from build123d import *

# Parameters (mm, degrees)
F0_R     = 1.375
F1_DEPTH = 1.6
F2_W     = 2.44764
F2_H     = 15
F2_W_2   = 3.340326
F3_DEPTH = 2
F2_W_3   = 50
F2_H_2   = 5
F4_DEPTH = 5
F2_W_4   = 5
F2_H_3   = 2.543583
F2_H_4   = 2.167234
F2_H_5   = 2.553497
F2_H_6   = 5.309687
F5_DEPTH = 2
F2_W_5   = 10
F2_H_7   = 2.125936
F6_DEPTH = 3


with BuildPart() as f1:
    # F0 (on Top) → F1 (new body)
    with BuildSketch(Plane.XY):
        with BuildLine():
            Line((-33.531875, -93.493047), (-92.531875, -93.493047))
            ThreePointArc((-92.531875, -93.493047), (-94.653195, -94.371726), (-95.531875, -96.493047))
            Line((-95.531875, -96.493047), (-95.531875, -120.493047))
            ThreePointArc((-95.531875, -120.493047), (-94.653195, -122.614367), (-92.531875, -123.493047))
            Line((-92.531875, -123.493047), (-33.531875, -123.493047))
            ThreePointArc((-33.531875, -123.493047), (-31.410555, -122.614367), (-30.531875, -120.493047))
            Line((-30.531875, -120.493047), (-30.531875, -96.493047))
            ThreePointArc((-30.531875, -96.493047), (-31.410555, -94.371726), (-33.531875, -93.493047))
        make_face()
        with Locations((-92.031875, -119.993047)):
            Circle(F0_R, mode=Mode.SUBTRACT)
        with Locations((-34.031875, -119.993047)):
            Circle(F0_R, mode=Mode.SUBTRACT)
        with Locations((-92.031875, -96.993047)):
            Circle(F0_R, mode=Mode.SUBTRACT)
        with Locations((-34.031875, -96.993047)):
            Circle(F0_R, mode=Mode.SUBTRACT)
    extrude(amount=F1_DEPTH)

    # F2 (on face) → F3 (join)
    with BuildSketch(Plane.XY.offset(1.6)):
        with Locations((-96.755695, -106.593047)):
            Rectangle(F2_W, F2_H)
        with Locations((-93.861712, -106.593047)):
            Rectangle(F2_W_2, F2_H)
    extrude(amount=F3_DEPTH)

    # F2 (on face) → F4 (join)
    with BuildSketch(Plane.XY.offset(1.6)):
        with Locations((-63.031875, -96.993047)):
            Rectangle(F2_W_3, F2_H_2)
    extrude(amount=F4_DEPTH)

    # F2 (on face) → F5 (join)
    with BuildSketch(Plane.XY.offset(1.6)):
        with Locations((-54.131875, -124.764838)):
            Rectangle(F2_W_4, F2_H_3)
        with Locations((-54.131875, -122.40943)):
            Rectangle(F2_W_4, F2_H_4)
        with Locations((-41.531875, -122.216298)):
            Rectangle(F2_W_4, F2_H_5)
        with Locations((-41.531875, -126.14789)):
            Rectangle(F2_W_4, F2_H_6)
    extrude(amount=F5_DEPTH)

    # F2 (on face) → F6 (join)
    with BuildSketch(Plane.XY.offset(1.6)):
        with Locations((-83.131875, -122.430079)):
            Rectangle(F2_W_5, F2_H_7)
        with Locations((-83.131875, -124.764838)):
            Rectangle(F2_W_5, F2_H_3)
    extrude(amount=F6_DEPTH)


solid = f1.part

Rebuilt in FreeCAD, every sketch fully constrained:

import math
import FreeCAD as App
import Part
import Sketcher
Q = App.Units.Quantity


def add_polygon(sketch, points):
    """Adds a closed chain of lines whose ends are joined by coincident constraints."""
    first, n = sketch.GeometryCount, len(points)
    for a, b in zip(points, points[1:] + points[:1]):
        sketch.addGeometry(Part.LineSegment(App.Vector(*a, 0), App.Vector(*b, 0)), False)
    for i in range(n):
        sketch.addConstraint(Sketcher.Constraint("Coincident", first + i, 2, first + (i + 1) % n, 1))

doc = App.newDocument("Part")
body = doc.addObject("PartDesign::Body", "Body")

# Sketch on XY plane
sketch1 = body.newObject("Sketcher::SketchObject", "Sketch")
sketch1.AttachmentSupport = (doc.getObject("XY_Plane"), [""])
sketch1.MapMode = "FlatFace"
sketch1.addGeometry([
    Part.LineSegment(App.Vector(-33.5, -93.5, 0), App.Vector(-92.5, -93.5, 0)),  # 0
    Part.ArcOfCircle(Part.Circle(App.Vector(-92.5, -96.5, 0), App.Vector(0, 0, 1), 3), math.radians(90), math.radians(180)),  # 1
    Part.LineSegment(App.Vector(-95.5, -96.5, 0), App.Vector(-95.5, -120.5, 0)),  # 2
    Part.ArcOfCircle(Part.Circle(App.Vector(-92.5, -120.5, 0), App.Vector(0, 0, 1), 3), math.radians(-180), math.radians(-90)),  # 3
    Part.LineSegment(App.Vector(-92.5, -123.5, 0), App.Vector(-33.5, -123.5, 0)),  # 4
    Part.ArcOfCircle(Part.Circle(App.Vector(-33.5, -120.5, 0), App.Vector(0, 0, 1), 3), math.radians(-90), math.radians(0)),  # 5
    Part.LineSegment(App.Vector(-30.5, -120.5, 0), App.Vector(-30.5, -96.5, 0)),  # 6
    Part.ArcOfCircle(Part.Circle(App.Vector(-33.5, -96.5, 0), App.Vector(0, 0, 1), 3), math.radians(0), math.radians(90)),  # 7
    Part.Circle(App.Vector(-92, -120, 0), App.Vector(0, 0, 1), 1.4),  # 8
    Part.Circle(App.Vector(-34, -120, 0), App.Vector(0, 0, 1), 1.4),  # 9
    Part.Circle(App.Vector(-92, -97, 0), App.Vector(0, 0, 1), 1.4),  # 10
    Part.Circle(App.Vector(-34, -97, 0), App.Vector(0, 0, 1), 1.4),  # 11
], False)
sketch1.addConstraint([
    Sketcher.Constraint("Tangent", 0, 2, 1, 1),
    Sketcher.Constraint("Tangent", 1, 2, 2, 1),
    Sketcher.Constraint("Tangent", 2, 2, 3, 1),
    Sketcher.Constraint("Tangent", 3, 2, 4, 1),
    Sketcher.Constraint("Tangent", 4, 2, 5, 1),
    Sketcher.Constraint("Tangent", 5, 2, 6, 1),
    Sketcher.Constraint("Tangent", 6, 2, 7, 1),
    Sketcher.Constraint("Tangent", 7, 2, 0, 1),
    Sketcher.Constraint("Horizontal", 0),
    Sketcher.Constraint("Vertical", 2),
    Sketcher.Constraint("Horizontal", 4),
    Sketcher.Constraint("Vertical", 6),
    Sketcher.Constraint("Equal", 1, 3),
    Sketcher.Constraint("Equal", 3, 5),
    Sketcher.Constraint("Equal", 5, 7),
    Sketcher.Constraint("Equal", 8, 9),
    Sketcher.Constraint("Equal", 9, 10),
    Sketcher.Constraint("Equal", 10, 11),
    Sketcher.Constraint("Horizontal", 8, 3, 9, 3),
    Sketcher.Constraint("Horizontal", 10, 3, 11, 3),
    Sketcher.Constraint("Vertical", 8, 3, 10, 3),
    Sketcher.Constraint("Vertical", 9, 3, 11, 3),
    Sketcher.Constraint("Radius", 1, Q("2.999999 mm")),
    Sketcher.Constraint("Diameter", 8, Q("2.75 mm")),
    Sketcher.Constraint("DistanceX", 0, 2, 0, 1, Q("59 mm")),
    Sketcher.Constraint("DistanceY", 2, 2, 2, 1, Q("24 mm")),
    Sketcher.Constraint("DistanceX", 8, 3, 9, 3, Q("58 mm")),
    Sketcher.Constraint("DistanceY", 8, 3, 10, 3, Q("23 mm")),
    Sketcher.Constraint("DistanceX", 3, 3, 8, 3, Q("0.499999 mm")),
    Sketcher.Constraint("DistanceY", 3, 3, 8, 3, Q("0.499999 mm")),
    Sketcher.Constraint("DistanceX", 1, 3, -1, 1, Q("92.531876 mm")),
    Sketcher.Constraint("DistanceY", 1, 3, -1, 1, Q("96.493046 mm")),
])
pad1 = body.newObject("PartDesign::Pad", "Pad")
pad1.Profile = sketch1
pad1.Length = 1.6

# Sketch on XY plane
sketch2 = body.newObject("Sketcher::SketchObject", "Sketch001")
sketch2.AttachmentSupport = (doc.getObject("XY_Plane"), [""])
sketch2.MapMode = "FlatFace"
sketch2.AttachmentOffset = App.Placement(App.Vector(0, 0, 1.6), App.Rotation())
add_polygon(sketch2, [(-98, -99), (-98, -114), (-92, -114), (-92, -99)])  # lines 0-3
sketch2.addConstraint([
    Sketcher.Constraint("Vertical", 0),
    Sketcher.Constraint("Horizontal", 1),
    Sketcher.Constraint("Vertical", 2),
    Sketcher.Constraint("Horizontal", 3),
    Sketcher.Constraint("DistanceY", 0, 2, 0, 1, Q("15 mm")),
    Sketcher.Constraint("DistanceX", 1, 1, 1, 2, Q("5.787966 mm")),
    Sketcher.Constraint("DistanceX", 1, 2, -1, 1, Q("92.191549 mm")),
    Sketcher.Constraint("DistanceY", 0, 2, -1, 1, Q("114.093047 mm")),
])
pad2 = body.newObject("PartDesign::Pad", "Pad001")
pad2.Profile = sketch2
pad2.Length = 2

# Sketch on XY plane
sketch3 = body.newObject("Sketcher::SketchObject", "Sketch002")
sketch3.AttachmentSupport = (doc.getObject("XY_Plane"), [""])
sketch3.MapMode = "FlatFace"
sketch3.AttachmentOffset = App.Placement(App.Vector(0, 0, 1.6), App.Rotation())
add_polygon(sketch3, [(-88, -94), (-88, -99), (-38, -99), (-38, -94)])  # lines 0-3
sketch3.addConstraint([
    Sketcher.Constraint("Vertical", 0),
    Sketcher.Constraint("Horizontal", 1),
    Sketcher.Constraint("Vertical", 2),
    Sketcher.Constraint("Horizontal", 3),
    Sketcher.Constraint("DistanceX", 1, 1, 1, 2, Q("50 mm")),
    Sketcher.Constraint("DistanceY", 0, 2, 0, 1, Q("5 mm")),
    Sketcher.Constraint("DistanceX", 0, 2, -1, 1, Q("88.031875 mm")),
    Sketcher.Constraint("DistanceY", 0, 2, -1, 1, Q("99.493047 mm")),
])
pad3 = body.newObject("PartDesign::Pad", "Pad002")
pad3.Profile = sketch3
pad3.Length = 5

# Sketch on XY plane
sketch4 = body.newObject("Sketcher::SketchObject", "Sketch003")
sketch4.AttachmentSupport = (doc.getObject("XY_Plane"), [""])
sketch4.MapMode = "FlatFace"
sketch4.AttachmentOffset = App.Placement(App.Vector(0, 0, 1.6), App.Rotation())
add_polygon(sketch4, [(-56.6, -126), (-51.6, -126), (-51.6, -121.3), (-56.6, -121.3)])  # lines 0-3
add_polygon(sketch4, [(-44, -120.9), (-44, -128.8), (-39, -128.8), (-39, -120.9)])  # lines 4-7
sketch4.addConstraint([
    Sketcher.Constraint("Horizontal", 0),
    Sketcher.Constraint("Vertical", 1),
    Sketcher.Constraint("Horizontal", 2),
    Sketcher.Constraint("Vertical", 3),
    Sketcher.Constraint("Vertical", 4),
    Sketcher.Constraint("Horizontal", 5),
    Sketcher.Constraint("Vertical", 6),
    Sketcher.Constraint("Horizontal", 7),
    Sketcher.Constraint("Equal", 2, 5),
    Sketcher.Constraint("DistanceX", 0, 1, 0, 2, Q("5 mm")),
    Sketcher.Constraint("DistanceX", 0, 2, 4, 2, Q("7.6 mm")),
    Sketcher.Constraint("DistanceY", 1, 1, 1, 2, Q("4.710817 mm")),
    Sketcher.Constraint("DistanceY", 4, 2, 4, 1, Q("7.863184 mm")),
    Sketcher.Constraint("DistanceY", 0, 2, -1, 1, Q("126.03663 mm")),
    Sketcher.Constraint("DistanceY", 6, 2, -1, 1, Q("120.939549 mm")),
    Sketcher.Constraint("DistanceX", 0, 2, -1, 1, Q("51.631875 mm")),
])
pad4 = body.newObject("PartDesign::Pad", "Pad003")
pad4.Profile = sketch4
pad4.Length = 2

# Sketch on XY plane
sketch5 = body.newObject("Sketcher::SketchObject", "Sketch004")
sketch5.AttachmentSupport = (doc.getObject("XY_Plane"), [""])
sketch5.MapMode = "FlatFace"
sketch5.AttachmentOffset = App.Placement(App.Vector(0, 0, 1.6), App.Rotation())
add_polygon(sketch5, [(-88.1, -126), (-78.1, -126), (-78.1, -121.4), (-88.1, -121.4)])  # lines 0-3
sketch5.addConstraint([
    Sketcher.Constraint("Horizontal", 0),
    Sketcher.Constraint("Vertical", 1),
    Sketcher.Constraint("Horizontal", 2),
    Sketcher.Constraint("Vertical", 3),
    Sketcher.Constraint("DistanceX", 0, 1, 0, 2, Q("10 mm")),
    Sketcher.Constraint("DistanceY", 1, 1, 1, 2, Q("4.669519 mm")),
    Sketcher.Constraint("DistanceY", 0, 2, -1, 1, Q("126.03663 mm")),
    Sketcher.Constraint("DistanceX", 0, 2, -1, 1, Q("78.131875 mm")),
])
pad5 = body.newObject("PartDesign::Pad", "Pad004")
pad5.Profile = sketch5
pad5.Length = 3

doc.recompute()
